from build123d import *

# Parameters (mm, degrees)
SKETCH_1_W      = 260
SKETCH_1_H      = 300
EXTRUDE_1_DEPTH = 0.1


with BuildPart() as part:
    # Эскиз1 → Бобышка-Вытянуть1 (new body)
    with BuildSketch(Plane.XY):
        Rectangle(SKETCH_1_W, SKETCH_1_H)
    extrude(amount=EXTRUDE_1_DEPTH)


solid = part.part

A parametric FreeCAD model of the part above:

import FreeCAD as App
import Part
import Sketcher
Q = App.Units.Quantity


def add_polygon(sketch, points):
    """Adds a closed chain of lines whose ends are joined by coincident constraints."""
    first, n = sketch.GeometryCount, len(points)
    for a, b in zip(points, points[1:] + points[:1]):
        sketch.addGeometry(Part.LineSegment(App.Vector(*a, 0), App.Vector(*b, 0)), False)
    for i in range(n):
        sketch.addConstraint(Sketcher.Constraint("Coincident", first + i, 2, first + (i + 1) % n, 1))

doc = App.newDocument("Part")
body = doc.addObject("PartDesign::Body", "Body")

# Sketch on XY plane
sketch1 = body.newObject("Sketcher::SketchObject", "Sketch")
sketch1.AttachmentSupport = (doc.getObject("XY_Plane"), [""])
sketch1.MapMode = "FlatFace"
add_polygon(sketch1, [(-130, 150), (-130, -150), (130, -150), (130, 150)])  # lines 0-3
sketch1.addConstraint(Sketcher.Constraint("Vertical", 0))
sketch1.addConstraint(Sketcher.Constraint("Horizontal", 1))
sketch1.addConstraint(Sketcher.Constraint("Vertical", 2))
sketch1.addConstraint(Sketcher.Constraint("Horizontal", 3))
sketch1.addConstraint(Sketcher.Constraint("Symmetric", 0, 2, 2, 2, -1, 1))
sketch1.addConstraint(Sketcher.Constraint("DistanceX", 1, 1, 1, 2, Q("260 mm")))
sketch1.addConstraint(Sketcher.Constraint("DistanceY", 0, 2, 0, 1, Q("300 mm")))
pad1 = body.newObject("PartDesign::Pad", "Pad")
pad1.Profile = sketch1
pad1.Length = 0.1

doc.recompute()
